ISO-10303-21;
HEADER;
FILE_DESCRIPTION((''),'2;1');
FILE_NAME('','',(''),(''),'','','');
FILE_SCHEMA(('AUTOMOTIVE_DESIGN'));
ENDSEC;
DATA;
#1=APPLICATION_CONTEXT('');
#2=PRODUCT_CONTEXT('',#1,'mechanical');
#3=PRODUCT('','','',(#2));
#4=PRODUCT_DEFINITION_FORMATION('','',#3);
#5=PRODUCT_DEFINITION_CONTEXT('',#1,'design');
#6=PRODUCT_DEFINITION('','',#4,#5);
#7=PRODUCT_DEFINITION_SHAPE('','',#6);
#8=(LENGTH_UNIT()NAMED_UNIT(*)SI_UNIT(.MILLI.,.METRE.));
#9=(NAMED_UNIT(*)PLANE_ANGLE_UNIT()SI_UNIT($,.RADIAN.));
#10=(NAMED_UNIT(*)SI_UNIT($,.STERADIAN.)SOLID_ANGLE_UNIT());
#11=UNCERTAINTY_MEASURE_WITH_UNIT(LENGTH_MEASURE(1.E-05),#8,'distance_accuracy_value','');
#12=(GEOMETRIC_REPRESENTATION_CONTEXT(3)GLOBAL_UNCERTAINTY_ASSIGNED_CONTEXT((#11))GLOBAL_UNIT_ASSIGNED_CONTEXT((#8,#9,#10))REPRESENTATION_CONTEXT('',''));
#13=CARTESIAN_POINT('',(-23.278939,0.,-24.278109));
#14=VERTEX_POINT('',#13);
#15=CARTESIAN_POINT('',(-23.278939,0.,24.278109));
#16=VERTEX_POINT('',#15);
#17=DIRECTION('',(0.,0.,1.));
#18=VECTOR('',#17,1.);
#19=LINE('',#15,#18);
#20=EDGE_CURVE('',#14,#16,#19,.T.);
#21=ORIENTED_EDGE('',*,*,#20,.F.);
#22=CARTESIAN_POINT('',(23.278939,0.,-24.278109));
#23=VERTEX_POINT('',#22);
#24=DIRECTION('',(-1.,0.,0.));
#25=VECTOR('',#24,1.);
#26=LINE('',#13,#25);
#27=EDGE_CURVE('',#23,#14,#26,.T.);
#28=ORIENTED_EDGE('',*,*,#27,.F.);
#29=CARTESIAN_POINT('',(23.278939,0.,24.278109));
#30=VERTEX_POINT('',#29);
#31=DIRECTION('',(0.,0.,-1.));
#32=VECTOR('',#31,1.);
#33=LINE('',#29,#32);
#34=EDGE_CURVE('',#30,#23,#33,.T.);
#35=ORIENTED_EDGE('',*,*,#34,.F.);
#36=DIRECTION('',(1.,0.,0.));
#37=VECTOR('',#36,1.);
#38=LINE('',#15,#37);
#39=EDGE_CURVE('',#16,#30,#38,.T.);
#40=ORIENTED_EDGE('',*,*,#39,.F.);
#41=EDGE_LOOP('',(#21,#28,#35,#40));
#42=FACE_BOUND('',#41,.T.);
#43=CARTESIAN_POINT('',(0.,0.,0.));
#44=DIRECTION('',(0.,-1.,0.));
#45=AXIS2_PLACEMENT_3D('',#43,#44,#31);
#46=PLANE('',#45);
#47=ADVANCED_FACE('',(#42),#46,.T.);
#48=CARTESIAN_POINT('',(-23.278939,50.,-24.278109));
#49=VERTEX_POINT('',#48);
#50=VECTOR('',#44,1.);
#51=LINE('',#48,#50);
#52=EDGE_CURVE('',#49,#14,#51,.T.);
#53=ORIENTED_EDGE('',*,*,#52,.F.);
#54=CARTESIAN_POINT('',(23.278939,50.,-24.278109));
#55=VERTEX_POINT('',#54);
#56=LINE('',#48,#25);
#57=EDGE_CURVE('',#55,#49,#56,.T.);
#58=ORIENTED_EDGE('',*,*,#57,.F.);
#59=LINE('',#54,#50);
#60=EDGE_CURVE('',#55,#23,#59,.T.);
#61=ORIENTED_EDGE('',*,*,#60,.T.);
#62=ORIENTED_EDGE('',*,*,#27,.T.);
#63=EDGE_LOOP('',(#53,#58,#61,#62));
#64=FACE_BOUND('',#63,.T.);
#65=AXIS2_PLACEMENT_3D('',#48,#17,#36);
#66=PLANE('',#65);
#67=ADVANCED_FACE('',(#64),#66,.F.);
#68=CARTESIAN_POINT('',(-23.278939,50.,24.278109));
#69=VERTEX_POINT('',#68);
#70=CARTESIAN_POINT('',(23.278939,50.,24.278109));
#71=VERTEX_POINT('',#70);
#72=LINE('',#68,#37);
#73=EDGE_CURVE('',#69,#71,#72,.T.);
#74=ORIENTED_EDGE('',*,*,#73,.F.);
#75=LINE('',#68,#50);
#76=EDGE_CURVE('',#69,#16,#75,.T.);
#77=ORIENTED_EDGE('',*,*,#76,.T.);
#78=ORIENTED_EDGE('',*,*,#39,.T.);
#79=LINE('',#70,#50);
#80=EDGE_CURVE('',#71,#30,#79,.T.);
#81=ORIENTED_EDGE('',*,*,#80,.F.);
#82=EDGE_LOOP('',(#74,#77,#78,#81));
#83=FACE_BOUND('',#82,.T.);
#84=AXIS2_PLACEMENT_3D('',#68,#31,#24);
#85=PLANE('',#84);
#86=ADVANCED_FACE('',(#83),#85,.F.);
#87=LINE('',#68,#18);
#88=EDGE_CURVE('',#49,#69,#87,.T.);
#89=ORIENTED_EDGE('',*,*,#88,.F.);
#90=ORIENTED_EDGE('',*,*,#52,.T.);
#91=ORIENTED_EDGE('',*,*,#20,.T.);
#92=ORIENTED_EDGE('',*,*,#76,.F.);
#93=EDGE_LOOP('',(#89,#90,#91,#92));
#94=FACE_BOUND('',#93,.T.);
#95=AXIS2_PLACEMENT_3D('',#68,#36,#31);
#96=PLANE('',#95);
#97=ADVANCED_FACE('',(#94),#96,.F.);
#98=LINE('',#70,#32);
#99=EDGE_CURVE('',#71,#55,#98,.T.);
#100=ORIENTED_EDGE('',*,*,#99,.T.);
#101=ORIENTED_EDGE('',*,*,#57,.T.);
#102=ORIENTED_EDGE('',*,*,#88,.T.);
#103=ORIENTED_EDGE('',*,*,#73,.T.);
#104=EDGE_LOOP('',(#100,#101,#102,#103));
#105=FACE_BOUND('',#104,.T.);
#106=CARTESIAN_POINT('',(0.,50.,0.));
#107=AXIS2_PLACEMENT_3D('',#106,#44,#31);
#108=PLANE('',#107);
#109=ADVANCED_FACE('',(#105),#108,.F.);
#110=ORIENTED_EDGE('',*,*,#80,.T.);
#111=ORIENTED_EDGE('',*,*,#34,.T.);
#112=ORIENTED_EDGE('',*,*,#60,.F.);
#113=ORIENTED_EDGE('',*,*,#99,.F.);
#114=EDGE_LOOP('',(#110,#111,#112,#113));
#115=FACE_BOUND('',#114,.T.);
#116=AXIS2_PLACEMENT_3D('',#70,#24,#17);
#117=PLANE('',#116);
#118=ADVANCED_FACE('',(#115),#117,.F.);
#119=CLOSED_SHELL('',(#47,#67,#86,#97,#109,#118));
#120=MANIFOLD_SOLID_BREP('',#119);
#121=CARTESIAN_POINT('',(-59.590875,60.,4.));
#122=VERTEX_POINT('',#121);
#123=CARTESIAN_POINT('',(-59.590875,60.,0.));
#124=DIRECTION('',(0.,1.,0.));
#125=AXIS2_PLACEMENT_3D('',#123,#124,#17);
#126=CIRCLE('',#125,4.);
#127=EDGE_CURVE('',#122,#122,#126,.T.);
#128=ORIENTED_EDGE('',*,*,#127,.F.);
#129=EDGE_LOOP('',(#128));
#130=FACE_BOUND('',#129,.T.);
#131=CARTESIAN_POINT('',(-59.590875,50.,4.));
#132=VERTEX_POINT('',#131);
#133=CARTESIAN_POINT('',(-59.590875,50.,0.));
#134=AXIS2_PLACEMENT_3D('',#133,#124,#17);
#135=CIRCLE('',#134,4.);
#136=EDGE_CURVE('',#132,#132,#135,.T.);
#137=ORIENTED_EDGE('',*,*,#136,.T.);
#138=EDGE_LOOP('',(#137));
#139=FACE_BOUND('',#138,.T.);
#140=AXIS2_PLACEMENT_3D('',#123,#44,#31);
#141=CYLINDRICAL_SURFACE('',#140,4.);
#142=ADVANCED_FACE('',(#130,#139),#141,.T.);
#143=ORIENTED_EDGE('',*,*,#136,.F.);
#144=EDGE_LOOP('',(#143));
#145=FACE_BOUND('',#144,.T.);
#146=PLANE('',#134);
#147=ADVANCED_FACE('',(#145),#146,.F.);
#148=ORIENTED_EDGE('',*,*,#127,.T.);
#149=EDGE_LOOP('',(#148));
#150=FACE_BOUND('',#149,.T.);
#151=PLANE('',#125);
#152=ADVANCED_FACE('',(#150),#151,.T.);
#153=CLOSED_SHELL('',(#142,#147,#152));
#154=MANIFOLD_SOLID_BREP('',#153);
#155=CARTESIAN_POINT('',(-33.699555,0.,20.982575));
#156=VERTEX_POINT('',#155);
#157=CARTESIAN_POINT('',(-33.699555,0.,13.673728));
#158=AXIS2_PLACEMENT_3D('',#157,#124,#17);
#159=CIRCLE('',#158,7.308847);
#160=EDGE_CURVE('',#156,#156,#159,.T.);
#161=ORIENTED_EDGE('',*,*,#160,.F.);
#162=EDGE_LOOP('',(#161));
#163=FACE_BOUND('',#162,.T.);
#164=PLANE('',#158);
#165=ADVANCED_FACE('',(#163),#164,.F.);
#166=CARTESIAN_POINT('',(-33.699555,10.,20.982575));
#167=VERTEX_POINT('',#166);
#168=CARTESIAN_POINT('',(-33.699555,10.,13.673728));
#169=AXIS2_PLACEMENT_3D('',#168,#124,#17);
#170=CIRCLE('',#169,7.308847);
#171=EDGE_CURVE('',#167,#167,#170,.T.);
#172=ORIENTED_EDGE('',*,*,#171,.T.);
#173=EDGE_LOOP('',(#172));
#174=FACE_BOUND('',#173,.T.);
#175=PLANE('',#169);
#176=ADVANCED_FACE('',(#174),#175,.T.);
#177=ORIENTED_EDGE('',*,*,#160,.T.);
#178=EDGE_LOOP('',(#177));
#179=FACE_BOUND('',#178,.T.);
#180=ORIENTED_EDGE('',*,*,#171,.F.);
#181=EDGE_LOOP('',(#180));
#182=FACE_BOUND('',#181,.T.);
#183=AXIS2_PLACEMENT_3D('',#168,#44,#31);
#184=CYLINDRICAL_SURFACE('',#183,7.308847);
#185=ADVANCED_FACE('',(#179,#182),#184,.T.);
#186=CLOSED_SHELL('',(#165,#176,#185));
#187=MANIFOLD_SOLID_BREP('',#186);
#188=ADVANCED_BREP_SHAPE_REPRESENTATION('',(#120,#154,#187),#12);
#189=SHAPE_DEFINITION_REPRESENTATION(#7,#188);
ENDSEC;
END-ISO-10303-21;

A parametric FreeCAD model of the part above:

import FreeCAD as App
import Part
import Sketcher
Q = App.Units.Quantity


def add_polygon(sketch, points):
    """Adds a closed chain of lines whose ends are joined by coincident constraints."""
    first, n = sketch.GeometryCount, len(points)
    for a, b in zip(points, points[1:] + points[:1]):
        sketch.addGeometry(Part.LineSegment(App.Vector(*a, 0), App.Vector(*b, 0)), False)
    for i in range(n):
        sketch.addConstraint(Sketcher.Constraint("Coincident", first + i, 2, first + (i + 1) % n, 1))

doc = App.newDocument("Part")
body = doc.addObject("PartDesign::Body", "Body")

# Sketch on XZ plane
sketch1 = doc.addObject("Sketcher::SketchObject", "Sketch")
body.addObject(sketch1)
sketch1.AttachmentSupport = (doc.XZ_Plane, [""])
sketch1.MapMode = "FlatFace"
add_polygon(sketch1, [(-23, -24), (-23, 24), (23, 24), (23, -24)])  # lines 0-3
sketch1.addConstraint(Sketcher.Constraint("Vertical", 0))
sketch1.addConstraint(Sketcher.Constraint("Horizontal", 1))
sketch1.addConstraint(Sketcher.Constraint("Vertical", 2))
sketch1.addConstraint(Sketcher.Constraint("Horizontal", 3))
sketch1.addConstraint(Sketcher.Constraint("Symmetric", 0, 2, 2, 2, -1, 1))
sketch1.addConstraint(Sketcher.Constraint("DistanceX", 1, 1, 1, 2, Q("46.557878 mm")))
sketch1.addConstraint(Sketcher.Constraint("DistanceY", 0, 1, 0, 2, Q("48.556218 mm")))
pad1 = doc.addObject("PartDesign::Pad", "Pad")
body.addObject(pad1)
pad1.Profile = sketch1
pad1.Length = 50
pad1.Reversed = True
body2 = doc.addObject("PartDesign::Body", "Body001")

# Sketch on XZ plane
sketch2 = doc.addObject("Sketcher::SketchObject", "Sketch001")
body2.addObject(sketch2)
sketch2.AttachmentSupport = (doc.getObject("XZ_Plane001"), [""])
sketch2.MapMode = "FlatFace"
sketch2.addGeometry(Part.Circle(App.Vector(-34, 14, 0), App.Vector(0, 0, 1), 7), False)
sketch2.addConstraint(Sketcher.Constraint("Diameter", 0, Q("14.617694 mm")))
sketch2.addConstraint(Sketcher.Constraint("DistanceY", -1, 1, 0, 3, Q("13.673728 mm")))
sketch2.addConstraint(Sketcher.Constraint("DistanceX", 0, 3, -1, 1, Q("33.699555 mm")))
pad2 = doc.addObject("PartDesign::Pad", "Pad001")
body2.addObject(pad2)
pad2.Profile = sketch2
pad2.Length = 10
pad2.Reversed = True
body3 = doc.addObject("PartDesign::Body", "Body002")

# Sketch on XZ plane
sketch3 = doc.addObject("Sketcher::SketchObject", "Sketch002")
body3.addObject(sketch3)
sketch3.AttachmentSupport = (doc.getObject("XZ_Plane002"), [""])
sketch3.MapMode = "FlatFace"
sketch3.AttachmentOffset = App.Placement(App.Vector(0, 0, -50), App.Rotation())
sketch3.addGeometry(Part.Circle(App.Vector(-59.6, 0, 0), App.Vector(0, 0, 1), 4), False)
sketch3.addConstraint(Sketcher.Constraint("PointOnObject", 0, 3, -1))
sketch3.addConstraint(Sketcher.Constraint("Diameter", 0, Q("8 mm")))
sketch3.addConstraint(Sketcher.Constraint("DistanceX", 0, 3, -1, 1, Q("59.590875 mm")))
pad3 = doc.addObject("PartDesign::Pad", "Pad002")
body3.addObject(pad3)
pad3.Profile = sketch3
pad3.Length = 10
pad3.Reversed = True

doc.recompute()
